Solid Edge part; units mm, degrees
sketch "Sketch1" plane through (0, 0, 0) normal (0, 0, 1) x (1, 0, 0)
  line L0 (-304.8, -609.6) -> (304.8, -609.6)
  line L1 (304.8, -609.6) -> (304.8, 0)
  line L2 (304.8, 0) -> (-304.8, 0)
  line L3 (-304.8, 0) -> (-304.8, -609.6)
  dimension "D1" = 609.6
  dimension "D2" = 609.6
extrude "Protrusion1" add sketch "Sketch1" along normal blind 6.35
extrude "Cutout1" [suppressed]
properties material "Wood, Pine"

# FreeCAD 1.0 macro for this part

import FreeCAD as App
import Part
import Sketcher

V = App.Vector
Q = App.Units.Quantity


def add_polygon(sketch, points):
    """Adds a closed chain of lines whose ends are joined by coincident constraints."""
    first, n = sketch.GeometryCount, len(points)
    for a, b in zip(points, points[1:] + points[:1]):
        sketch.addGeometry(Part.LineSegment(App.Vector(*a, 0), App.Vector(*b, 0)), False)
    for i in range(n):
        sketch.addConstraint(Sketcher.Constraint("Coincident", first + i, 2, first + (i + 1) % n, 1))

doc = App.newDocument("Part")
body = doc.addObject("PartDesign::Body", "Body")

sketch1 = body.newObject("Sketcher::SketchObject", "Sketch")
sketch1.AttachmentSupport = (doc.getObject("XY_Plane"), [""])
sketch1.MapMode = "FlatFace"
add_polygon(sketch1, [(-304.8, 0), (-304.8, -609.6), (304.8, -609.6), (304.8, 0)])
sketch1.addConstraint(Sketcher.Constraint("Vertical", 0))
sketch1.addConstraint(Sketcher.Constraint("Horizontal", 1))
sketch1.addConstraint(Sketcher.Constraint("Vertical", 2))
sketch1.addConstraint(Sketcher.Constraint("Horizontal", 3))
sketch1.addConstraint(Sketcher.Constraint("Symmetric", 2, 2, 3, 2, -1, 1))
sketch1.addConstraint(Sketcher.Constraint("Equal", 3, 0))
sketch1.addConstraint(Sketcher.Constraint("DistanceX", 0, 2, -1, 1, Q("12 in")))
pad1 = body.newObject("PartDesign::Pad", "Pad")
pad1.Profile = sketch1
pad1.Length = Q("0.25 in")

doc.recompute()
